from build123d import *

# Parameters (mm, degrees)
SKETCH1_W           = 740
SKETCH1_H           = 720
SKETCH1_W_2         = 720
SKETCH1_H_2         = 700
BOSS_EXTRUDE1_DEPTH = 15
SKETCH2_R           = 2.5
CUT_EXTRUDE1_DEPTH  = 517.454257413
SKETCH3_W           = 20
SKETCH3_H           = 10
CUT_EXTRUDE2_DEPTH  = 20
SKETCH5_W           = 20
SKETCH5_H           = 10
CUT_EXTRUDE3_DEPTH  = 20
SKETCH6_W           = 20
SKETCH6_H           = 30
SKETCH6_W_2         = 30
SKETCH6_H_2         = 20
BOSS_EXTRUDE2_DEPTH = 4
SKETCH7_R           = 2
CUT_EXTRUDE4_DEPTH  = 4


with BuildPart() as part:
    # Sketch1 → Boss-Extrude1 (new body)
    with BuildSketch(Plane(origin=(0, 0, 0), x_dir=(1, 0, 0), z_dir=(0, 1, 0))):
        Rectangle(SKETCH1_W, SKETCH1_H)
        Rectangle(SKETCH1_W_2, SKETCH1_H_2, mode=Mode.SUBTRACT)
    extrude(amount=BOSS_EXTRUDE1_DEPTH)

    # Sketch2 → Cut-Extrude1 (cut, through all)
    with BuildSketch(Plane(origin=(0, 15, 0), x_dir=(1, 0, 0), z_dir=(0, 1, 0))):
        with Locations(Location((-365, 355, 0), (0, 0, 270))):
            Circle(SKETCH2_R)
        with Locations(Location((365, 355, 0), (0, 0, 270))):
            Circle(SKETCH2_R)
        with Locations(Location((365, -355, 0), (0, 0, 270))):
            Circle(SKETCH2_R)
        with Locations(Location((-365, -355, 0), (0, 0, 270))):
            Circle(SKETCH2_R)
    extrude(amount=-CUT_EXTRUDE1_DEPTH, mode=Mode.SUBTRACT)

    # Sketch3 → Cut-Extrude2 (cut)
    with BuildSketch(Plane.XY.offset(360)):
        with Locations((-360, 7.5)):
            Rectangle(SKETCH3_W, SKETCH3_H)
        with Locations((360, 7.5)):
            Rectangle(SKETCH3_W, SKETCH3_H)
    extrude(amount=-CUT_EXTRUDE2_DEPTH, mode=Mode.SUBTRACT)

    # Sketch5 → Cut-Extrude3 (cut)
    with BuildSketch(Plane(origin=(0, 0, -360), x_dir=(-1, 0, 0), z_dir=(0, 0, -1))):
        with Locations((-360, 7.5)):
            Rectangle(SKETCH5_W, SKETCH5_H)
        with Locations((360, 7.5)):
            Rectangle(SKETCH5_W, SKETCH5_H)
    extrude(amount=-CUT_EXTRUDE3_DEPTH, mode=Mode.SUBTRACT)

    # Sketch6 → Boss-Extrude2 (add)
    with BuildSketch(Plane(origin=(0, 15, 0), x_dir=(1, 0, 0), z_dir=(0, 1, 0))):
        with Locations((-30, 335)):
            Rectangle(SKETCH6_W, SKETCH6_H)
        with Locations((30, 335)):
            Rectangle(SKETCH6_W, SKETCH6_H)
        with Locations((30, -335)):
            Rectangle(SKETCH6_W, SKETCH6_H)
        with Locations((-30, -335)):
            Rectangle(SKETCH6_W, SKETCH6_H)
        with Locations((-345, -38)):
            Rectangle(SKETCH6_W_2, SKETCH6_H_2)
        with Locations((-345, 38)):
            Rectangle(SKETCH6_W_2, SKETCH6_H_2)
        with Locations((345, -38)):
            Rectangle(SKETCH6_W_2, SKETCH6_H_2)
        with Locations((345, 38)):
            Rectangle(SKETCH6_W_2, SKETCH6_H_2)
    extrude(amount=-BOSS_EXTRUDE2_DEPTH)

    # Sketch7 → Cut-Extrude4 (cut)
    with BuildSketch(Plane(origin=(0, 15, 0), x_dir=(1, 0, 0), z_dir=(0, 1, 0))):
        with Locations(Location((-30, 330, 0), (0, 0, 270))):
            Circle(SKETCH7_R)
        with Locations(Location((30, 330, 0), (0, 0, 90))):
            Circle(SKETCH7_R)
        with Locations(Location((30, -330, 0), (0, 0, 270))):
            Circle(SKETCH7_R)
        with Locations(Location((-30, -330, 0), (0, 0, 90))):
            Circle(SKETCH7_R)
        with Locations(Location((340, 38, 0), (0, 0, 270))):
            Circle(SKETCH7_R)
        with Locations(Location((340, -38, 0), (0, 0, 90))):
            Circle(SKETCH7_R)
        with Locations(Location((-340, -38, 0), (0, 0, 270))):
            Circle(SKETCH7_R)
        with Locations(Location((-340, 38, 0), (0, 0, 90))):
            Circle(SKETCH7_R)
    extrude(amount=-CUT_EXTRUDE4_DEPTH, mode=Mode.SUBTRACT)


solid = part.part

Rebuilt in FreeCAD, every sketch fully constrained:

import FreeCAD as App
import Part
import Sketcher
from FreeCAD import Vector
Q = App.Units.Quantity


def add_polygon(sketch, points):
    """Adds a closed chain of lines whose ends are joined by coincident constraints."""
    first, n = sketch.GeometryCount, len(points)
    for a, b in zip(points, points[1:] + points[:1]):
        sketch.addGeometry(Part.LineSegment(App.Vector(*a, 0), App.Vector(*b, 0)), False)
    for i in range(n):
        sketch.addConstraint(Sketcher.Constraint("Coincident", first + i, 2, first + (i + 1) % n, 1))

doc = App.newDocument("Part")
body = doc.addObject("PartDesign::Body", "Body")

# Sketch on XZ plane
sketch1 = body.newObject("Sketcher::SketchObject", "Sketch")
sketch1.AttachmentSupport = (doc.getObject("XZ_Plane"), [""])
sketch1.MapMode = "FlatFace"
add_polygon(sketch1, [(-370, -360), (-370, 360), (370, 360), (370, -360)])  # lines 0-3
add_polygon(sketch1, [(360, 350), (-360, 350), (-360, -350), (360, -350)])  # lines 4-7
sketch1.addConstraint([
    Sketcher.Constraint("Vertical", 0),
    Sketcher.Constraint("Horizontal", 1),
    Sketcher.Constraint("Vertical", 2),
    Sketcher.Constraint("Horizontal", 3),
    Sketcher.Constraint("Horizontal", 4),
    Sketcher.Constraint("Vertical", 5),
    Sketcher.Constraint("Horizontal", 6),
    Sketcher.Constraint("Vertical", 7),
    Sketcher.Constraint("Symmetric", 0, 2, 2, 2, -1, 1),
    Sketcher.Constraint("Symmetric", 4, 2, 6, 2, -1, 1),
    Sketcher.Constraint("Equal", 6, 0),
    Sketcher.Constraint("DistanceX", 1, 1, 1, 2, Q("740 mm")),
    Sketcher.Constraint("DistanceX", 4, 2, 4, 1, Q("720 mm")),
    Sketcher.Constraint("DistanceY", 5, 2, 5, 1, Q("700 mm")),
])
pad1 = body.newObject("PartDesign::Pad", "Pad")
pad1.Profile = sketch1
pad1.Length = 15
pad1.Reversed = True

# Sketch on XZ plane
sketch2 = body.newObject("Sketcher::SketchObject", "Sketch001")
sketch2.AttachmentSupport = (doc.getObject("XZ_Plane"), [""])
sketch2.MapMode = "FlatFace"
sketch2.AttachmentOffset = App.Placement(Vector(0, 0, -15), App.Rotation())
sketch2.addGeometry([
    Part.Circle(Vector(-365, -355, 0), Vector(0, 0, 1), 2.5),
    Part.Circle(Vector(365, -355, 0), Vector(0, 0, 1), 2.5),
    Part.Circle(Vector(365, 355, 0), Vector(0, 0, 1), 2.5),
    Part.Circle(Vector(-365, 355, 0), Vector(0, 0, 1), 2.5),
], False)
sketch2.addConstraint([
    Sketcher.Constraint("Equal", 0, 1),
    Sketcher.Constraint("Equal", 1, 2),
    Sketcher.Constraint("Equal", 2, 3),
    Sketcher.Constraint("Symmetric", 0, 3, 2, 3, -1, 1),
    Sketcher.Constraint("Symmetric", 1, 3, 3, 3, -1, 1),
    Sketcher.Constraint("Symmetric", 0, 3, 1, 3, -2),
    Sketcher.Constraint("Diameter", 0, Q("5 mm")),
    Sketcher.Constraint("DistanceX", 0, 3, -1, 1, Q("365 mm")),
    Sketcher.Constraint("DistanceY", 0, 3, -1, 1, Q("355 mm")),
])
pocket1 = body.newObject("PartDesign::Pocket", "Pocket")
pocket1.Profile = sketch2
pocket1.Type = "ThroughAll"
pocket1.Reversed = True

# Sketch on XY plane
sketch3 = body.newObject("Sketcher::SketchObject", "Sketch002")
sketch3.AttachmentSupport = (doc.getObject("XY_Plane"), [""])
sketch3.MapMode = "FlatFace"
sketch3.AttachmentOffset = App.Placement(Vector(0, 0, 360), App.Rotation())
add_polygon(sketch3, [(-370, 12), (-370, 2), (-350, 2), (-350, 12)])  # lines 0-3
add_polygon(sketch3, [(350, 12), (350, 2), (370, 2), (370, 12)])  # lines 4-7
sketch3.addConstraint([
    Sketcher.Constraint("Vertical", 0),
    Sketcher.Constraint("Horizontal", 1),
    Sketcher.Constraint("Vertical", 2),
    Sketcher.Constraint("Horizontal", 3),
    Sketcher.Constraint("Vertical", 4),
    Sketcher.Constraint("Horizontal", 5),
    Sketcher.Constraint("Vertical", 6),
    Sketcher.Constraint("Horizontal", 7),
    Sketcher.Constraint("Symmetric", 1, 2, 4, 2, -2),
    Sketcher.Constraint("Symmetric", 3, 2, 6, 2, -2),
    Sketcher.Constraint("DistanceX", 1, 1, 1, 2, Q("20 mm")),
    Sketcher.Constraint("DistanceY", 0, 2, 0, 1, Q("10 mm")),
    Sketcher.Constraint("DistanceX", 0, 2, -1, 1, Q("370 mm")),
    Sketcher.Constraint("DistanceY", -1, 1, 0, 2, Q("2.5 mm")),
])
pocket2 = body.newObject("PartDesign::Pocket", "Pocket001")
pocket2.Profile = sketch3
pocket2.Length = 20

# Sketch on XY plane
sketch4 = body.newObject("Sketcher::SketchObject", "Sketch003")
sketch4.AttachmentSupport = (doc.getObject("XY_Plane"), [""])
sketch4.MapMode = "FlatFace"
sketch4.AttachmentOffset = App.Placement(Vector(0, 0, -360), App.Rotation())
add_polygon(sketch4, [(370, 12), (370, 2), (350, 2), (350, 12)])  # lines 0-3
add_polygon(sketch4, [(-350, 12), (-350, 2), (-370, 2), (-370, 12)])  # lines 4-7
sketch4.addConstraint([
    Sketcher.Constraint("Vertical", 0),
    Sketcher.Constraint("Horizontal", 1),
    Sketcher.Constraint("Vertical", 2),
    Sketcher.Constraint("Horizontal", 3),
    Sketcher.Constraint("Vertical", 4),
    Sketcher.Constraint("Horizontal", 5),
    Sketcher.Constraint("Vertical", 6),
    Sketcher.Constraint("Horizontal", 7),
    Sketcher.Constraint("Symmetric", 1, 2, 4, 2, -2),
    Sketcher.Constraint("Symmetric", 3, 2, 6, 2, -2),
    Sketcher.Constraint("DistanceX", 1, 2, 1, 1, Q("20 mm")),
    Sketcher.Constraint("DistanceY", 0, 2, 0, 1, Q("10 mm")),
    Sketcher.Constraint("DistanceX", -1, 1, 0, 2, Q("370 mm")),
    Sketcher.Constraint("DistanceY", -1, 1, 0, 2, Q("2.5 mm")),
])
pocket3 = body.newObject("PartDesign::Pocket", "Pocket002")
pocket3.Profile = sketch4
pocket3.Length = 20
pocket3.Reversed = True

# Sketch on XZ plane
sketch5 = body.newObject("Sketcher::SketchObject", "Sketch004")
sketch5.AttachmentSupport = (doc.getObject("XZ_Plane"), [""])
sketch5.MapMode = "FlatFace"
sketch5.AttachmentOffset = App.Placement(Vector(0, 0, -15), App.Rotation())
add_polygon(sketch5, [(-40, -350), (-40, -320), (-20, -320), (-20, -350)])  # lines 0-3
add_polygon(sketch5, [(20, -350), (20, -320), (40, -320), (40, -350)])  # lines 4-7
add_polygon(sketch5, [(20, 320), (20, 350), (40, 350), (40, 320)])  # lines 8-11
add_polygon(sketch5, [(-40, 320), (-40, 350), (-20, 350), (-20, 320)])  # lines 12-15
add_polygon(sketch5, [(-360, 28), (-360, 48), (-330, 48), (-330, 28)])  # lines 16-19
add_polygon(sketch5, [(-360, -48), (-360, -28), (-330, -28), (-330, -48)])  # lines 20-23
add_polygon(sketch5, [(330, 28), (330, 48), (360, 48), (360, 28)])  # lines 24-27
add_polygon(sketch5, [(330, -48), (330, -28), (360, -28), (360, -48)])  # lines 28-31
sketch5.addConstraint([
    Sketcher.Constraint("Vertical", 0),
    Sketcher.Constraint("Horizontal", 1),
    Sketcher.Constraint("Vertical", 2),
    Sketcher.Constraint("Horizontal", 3),
    Sketcher.Constraint("Vertical", 4),
    Sketcher.Constraint("Horizontal", 5),
    Sketcher.Constraint("Vertical", 6),
    Sketcher.Constraint("Horizontal", 7),
    Sketcher.Constraint("Vertical", 8),
    Sketcher.Constraint("Horizontal", 9),
    Sketcher.Constraint("Vertical", 10),
    Sketcher.Constraint("Horizontal", 11),
    Sketcher.Constraint("Vertical", 12),
    Sketcher.Constraint("Horizontal", 13),
    Sketcher.Constraint("Vertical", 14),
    Sketcher.Constraint("Horizontal", 15),
    Sketcher.Constraint("Vertical", 16),
    Sketcher.Constraint("Horizontal", 17),
    Sketcher.Constraint("Vertical", 18),
    Sketcher.Constraint("Horizontal", 19),
    Sketcher.Constraint("Vertical", 20),
    Sketcher.Constraint("Horizontal", 21),
    Sketcher.Constraint("Vertical", 22),
    Sketcher.Constraint("Horizontal", 23),
    Sketcher.Constraint("Vertical", 24),
    Sketcher.Constraint("Horizontal", 25),
    Sketcher.Constraint("Vertical", 26),
    Sketcher.Constraint("Horizontal", 27),
    Sketcher.Constraint("Vertical", 28),
    Sketcher.Constraint("Horizontal", 29),
    Sketcher.Constraint("Vertical", 30),
    Sketcher.Constraint("Horizontal", 31),
    Sketcher.Constraint("Symmetric", 2, 2, 8, 2, -1, 1),
    Sketcher.Constraint("Symmetric", 0, 2, 10, 2, -1, 1),
    Sketcher.Constraint("Symmetric", 6, 2, 12, 2, -1, 1),
    Sketcher.Constraint("Symmetric", 4, 2, 14, 2, -1, 1),
    Sketcher.Constraint("Symmetric", 22, 2, 24, 2, -1, 1),
    Sketcher.Constraint("Symmetric", 20, 2, 26, 2, -1, 1),
    Sketcher.Constraint("Symmetric", 18, 2, 28, 2, -1, 1),
    Sketcher.Constraint("Symmetric", 16, 2, 30, 2, -1, 1),
    Sketcher.Constraint("Symmetric", 1, 2, 4, 2, -2),
    Sketcher.Constraint("Symmetric", 3, 2, 6, 2, -2),
    Sketcher.Constraint("Symmetric", 17, 2, 24, 2, -2),
    Sketcher.Constraint("Symmetric", 19, 2, 26, 2, -2),
    Sketcher.Constraint("Equal", 31, 0),
    Sketcher.Constraint("Equal", 15, 16),
    Sketcher.Constraint("DistanceX", 1, 1, 1, 2, Q("20 mm")),
    Sketcher.Constraint("DistanceX", 17, 1, 17, 2, Q("30 mm")),
    Sketcher.Constraint("DistanceX", 0, 2, -1, 1, Q("40 mm")),
    Sketcher.Constraint("DistanceY", 0, 2, -1, 1, Q("320 mm")),
    Sketcher.Constraint("DistanceX", 16, 2, -1, 1, Q("360 mm")),
    Sketcher.Constraint("DistanceY", -1, 1, 16, 2, Q("48 mm")),
])
pad2 = body.newObject("PartDesign::Pad", "Pad001")
pad2.Profile = sketch5
pad2.Length = 4

# Sketch on XZ plane
sketch6 = body.newObject("Sketcher::SketchObject", "Sketch005")
sketch6.AttachmentSupport = (doc.getObject("XZ_Plane"), [""])
sketch6.MapMode = "FlatFace"
sketch6.AttachmentOffset = App.Placement(Vector(0, 0, -15), App.Rotation())
sketch6.addGeometry([
    Part.Circle(Vector(-30, -330, 0), Vector(0, 0, 1), 2),  # 0
    Part.Circle(Vector(30, -330, 0), Vector(0, 0, 1), 2),  # 1
    Part.Circle(Vector(30, 330, 0), Vector(0, 0, 1), 2),  # 2
    Part.Circle(Vector(-30, 330, 0), Vector(0, 0, 1), 2),  # 3
    Part.Circle(Vector(340, -38, 0), Vector(0, 0, 1), 2),  # 4
    Part.Circle(Vector(340, 38, 0), Vector(0, 0, 1), 2),  # 5
    Part.Circle(Vector(-340, 38, 0), Vector(0, 0, 1), 2),  # 6
    Part.Circle(Vector(-340, -38, 0), Vector(0, 0, 1), 2),  # 7
], False)
sketch6.addConstraint([
    Sketcher.Constraint("Equal", 0, 1),
    Sketcher.Constraint("Equal", 1, 2),
    Sketcher.Constraint("Equal", 2, 3),
    Sketcher.Constraint("Equal", 3, 4),
    Sketcher.Constraint("Equal", 4, 5),
    Sketcher.Constraint("Equal", 5, 6),
    Sketcher.Constraint("Equal", 6, 7),
    Sketcher.Constraint("Symmetric", 0, 3, 2, 3, -1, 1),
    Sketcher.Constraint("Symmetric", 1, 3, 3, 3, -1, 1),
    Sketcher.Constraint("Symmetric", 4, 3, 6, 3, -1, 1),
    Sketcher.Constraint("Symmetric", 5, 3, 7, 3, -1, 1),
    Sketcher.Constraint("Symmetric", 0, 3, 1, 3, -2),
    Sketcher.Constraint("Symmetric", 5, 3, 6, 3, -2),
    Sketcher.Constraint("Diameter", 0, Q("4 mm")),
    Sketcher.Constraint("DistanceX", 0, 3, -1, 1, Q("30 mm")),
    Sketcher.Constraint("DistanceY", 0, 3, -1, 1, Q("330 mm")),
    Sketcher.Constraint("DistanceX", -1, 1, 4, 3, Q("340 mm")),
    Sketcher.Constraint("DistanceY", 4, 3, -1, 1, Q("38 mm")),
])
pocket4 = body.newObject("PartDesign::Pocket", "Pocket003")
pocket4.Profile = sketch6
pocket4.Length = 4
pocket4.Reversed = True

doc.recompute()
